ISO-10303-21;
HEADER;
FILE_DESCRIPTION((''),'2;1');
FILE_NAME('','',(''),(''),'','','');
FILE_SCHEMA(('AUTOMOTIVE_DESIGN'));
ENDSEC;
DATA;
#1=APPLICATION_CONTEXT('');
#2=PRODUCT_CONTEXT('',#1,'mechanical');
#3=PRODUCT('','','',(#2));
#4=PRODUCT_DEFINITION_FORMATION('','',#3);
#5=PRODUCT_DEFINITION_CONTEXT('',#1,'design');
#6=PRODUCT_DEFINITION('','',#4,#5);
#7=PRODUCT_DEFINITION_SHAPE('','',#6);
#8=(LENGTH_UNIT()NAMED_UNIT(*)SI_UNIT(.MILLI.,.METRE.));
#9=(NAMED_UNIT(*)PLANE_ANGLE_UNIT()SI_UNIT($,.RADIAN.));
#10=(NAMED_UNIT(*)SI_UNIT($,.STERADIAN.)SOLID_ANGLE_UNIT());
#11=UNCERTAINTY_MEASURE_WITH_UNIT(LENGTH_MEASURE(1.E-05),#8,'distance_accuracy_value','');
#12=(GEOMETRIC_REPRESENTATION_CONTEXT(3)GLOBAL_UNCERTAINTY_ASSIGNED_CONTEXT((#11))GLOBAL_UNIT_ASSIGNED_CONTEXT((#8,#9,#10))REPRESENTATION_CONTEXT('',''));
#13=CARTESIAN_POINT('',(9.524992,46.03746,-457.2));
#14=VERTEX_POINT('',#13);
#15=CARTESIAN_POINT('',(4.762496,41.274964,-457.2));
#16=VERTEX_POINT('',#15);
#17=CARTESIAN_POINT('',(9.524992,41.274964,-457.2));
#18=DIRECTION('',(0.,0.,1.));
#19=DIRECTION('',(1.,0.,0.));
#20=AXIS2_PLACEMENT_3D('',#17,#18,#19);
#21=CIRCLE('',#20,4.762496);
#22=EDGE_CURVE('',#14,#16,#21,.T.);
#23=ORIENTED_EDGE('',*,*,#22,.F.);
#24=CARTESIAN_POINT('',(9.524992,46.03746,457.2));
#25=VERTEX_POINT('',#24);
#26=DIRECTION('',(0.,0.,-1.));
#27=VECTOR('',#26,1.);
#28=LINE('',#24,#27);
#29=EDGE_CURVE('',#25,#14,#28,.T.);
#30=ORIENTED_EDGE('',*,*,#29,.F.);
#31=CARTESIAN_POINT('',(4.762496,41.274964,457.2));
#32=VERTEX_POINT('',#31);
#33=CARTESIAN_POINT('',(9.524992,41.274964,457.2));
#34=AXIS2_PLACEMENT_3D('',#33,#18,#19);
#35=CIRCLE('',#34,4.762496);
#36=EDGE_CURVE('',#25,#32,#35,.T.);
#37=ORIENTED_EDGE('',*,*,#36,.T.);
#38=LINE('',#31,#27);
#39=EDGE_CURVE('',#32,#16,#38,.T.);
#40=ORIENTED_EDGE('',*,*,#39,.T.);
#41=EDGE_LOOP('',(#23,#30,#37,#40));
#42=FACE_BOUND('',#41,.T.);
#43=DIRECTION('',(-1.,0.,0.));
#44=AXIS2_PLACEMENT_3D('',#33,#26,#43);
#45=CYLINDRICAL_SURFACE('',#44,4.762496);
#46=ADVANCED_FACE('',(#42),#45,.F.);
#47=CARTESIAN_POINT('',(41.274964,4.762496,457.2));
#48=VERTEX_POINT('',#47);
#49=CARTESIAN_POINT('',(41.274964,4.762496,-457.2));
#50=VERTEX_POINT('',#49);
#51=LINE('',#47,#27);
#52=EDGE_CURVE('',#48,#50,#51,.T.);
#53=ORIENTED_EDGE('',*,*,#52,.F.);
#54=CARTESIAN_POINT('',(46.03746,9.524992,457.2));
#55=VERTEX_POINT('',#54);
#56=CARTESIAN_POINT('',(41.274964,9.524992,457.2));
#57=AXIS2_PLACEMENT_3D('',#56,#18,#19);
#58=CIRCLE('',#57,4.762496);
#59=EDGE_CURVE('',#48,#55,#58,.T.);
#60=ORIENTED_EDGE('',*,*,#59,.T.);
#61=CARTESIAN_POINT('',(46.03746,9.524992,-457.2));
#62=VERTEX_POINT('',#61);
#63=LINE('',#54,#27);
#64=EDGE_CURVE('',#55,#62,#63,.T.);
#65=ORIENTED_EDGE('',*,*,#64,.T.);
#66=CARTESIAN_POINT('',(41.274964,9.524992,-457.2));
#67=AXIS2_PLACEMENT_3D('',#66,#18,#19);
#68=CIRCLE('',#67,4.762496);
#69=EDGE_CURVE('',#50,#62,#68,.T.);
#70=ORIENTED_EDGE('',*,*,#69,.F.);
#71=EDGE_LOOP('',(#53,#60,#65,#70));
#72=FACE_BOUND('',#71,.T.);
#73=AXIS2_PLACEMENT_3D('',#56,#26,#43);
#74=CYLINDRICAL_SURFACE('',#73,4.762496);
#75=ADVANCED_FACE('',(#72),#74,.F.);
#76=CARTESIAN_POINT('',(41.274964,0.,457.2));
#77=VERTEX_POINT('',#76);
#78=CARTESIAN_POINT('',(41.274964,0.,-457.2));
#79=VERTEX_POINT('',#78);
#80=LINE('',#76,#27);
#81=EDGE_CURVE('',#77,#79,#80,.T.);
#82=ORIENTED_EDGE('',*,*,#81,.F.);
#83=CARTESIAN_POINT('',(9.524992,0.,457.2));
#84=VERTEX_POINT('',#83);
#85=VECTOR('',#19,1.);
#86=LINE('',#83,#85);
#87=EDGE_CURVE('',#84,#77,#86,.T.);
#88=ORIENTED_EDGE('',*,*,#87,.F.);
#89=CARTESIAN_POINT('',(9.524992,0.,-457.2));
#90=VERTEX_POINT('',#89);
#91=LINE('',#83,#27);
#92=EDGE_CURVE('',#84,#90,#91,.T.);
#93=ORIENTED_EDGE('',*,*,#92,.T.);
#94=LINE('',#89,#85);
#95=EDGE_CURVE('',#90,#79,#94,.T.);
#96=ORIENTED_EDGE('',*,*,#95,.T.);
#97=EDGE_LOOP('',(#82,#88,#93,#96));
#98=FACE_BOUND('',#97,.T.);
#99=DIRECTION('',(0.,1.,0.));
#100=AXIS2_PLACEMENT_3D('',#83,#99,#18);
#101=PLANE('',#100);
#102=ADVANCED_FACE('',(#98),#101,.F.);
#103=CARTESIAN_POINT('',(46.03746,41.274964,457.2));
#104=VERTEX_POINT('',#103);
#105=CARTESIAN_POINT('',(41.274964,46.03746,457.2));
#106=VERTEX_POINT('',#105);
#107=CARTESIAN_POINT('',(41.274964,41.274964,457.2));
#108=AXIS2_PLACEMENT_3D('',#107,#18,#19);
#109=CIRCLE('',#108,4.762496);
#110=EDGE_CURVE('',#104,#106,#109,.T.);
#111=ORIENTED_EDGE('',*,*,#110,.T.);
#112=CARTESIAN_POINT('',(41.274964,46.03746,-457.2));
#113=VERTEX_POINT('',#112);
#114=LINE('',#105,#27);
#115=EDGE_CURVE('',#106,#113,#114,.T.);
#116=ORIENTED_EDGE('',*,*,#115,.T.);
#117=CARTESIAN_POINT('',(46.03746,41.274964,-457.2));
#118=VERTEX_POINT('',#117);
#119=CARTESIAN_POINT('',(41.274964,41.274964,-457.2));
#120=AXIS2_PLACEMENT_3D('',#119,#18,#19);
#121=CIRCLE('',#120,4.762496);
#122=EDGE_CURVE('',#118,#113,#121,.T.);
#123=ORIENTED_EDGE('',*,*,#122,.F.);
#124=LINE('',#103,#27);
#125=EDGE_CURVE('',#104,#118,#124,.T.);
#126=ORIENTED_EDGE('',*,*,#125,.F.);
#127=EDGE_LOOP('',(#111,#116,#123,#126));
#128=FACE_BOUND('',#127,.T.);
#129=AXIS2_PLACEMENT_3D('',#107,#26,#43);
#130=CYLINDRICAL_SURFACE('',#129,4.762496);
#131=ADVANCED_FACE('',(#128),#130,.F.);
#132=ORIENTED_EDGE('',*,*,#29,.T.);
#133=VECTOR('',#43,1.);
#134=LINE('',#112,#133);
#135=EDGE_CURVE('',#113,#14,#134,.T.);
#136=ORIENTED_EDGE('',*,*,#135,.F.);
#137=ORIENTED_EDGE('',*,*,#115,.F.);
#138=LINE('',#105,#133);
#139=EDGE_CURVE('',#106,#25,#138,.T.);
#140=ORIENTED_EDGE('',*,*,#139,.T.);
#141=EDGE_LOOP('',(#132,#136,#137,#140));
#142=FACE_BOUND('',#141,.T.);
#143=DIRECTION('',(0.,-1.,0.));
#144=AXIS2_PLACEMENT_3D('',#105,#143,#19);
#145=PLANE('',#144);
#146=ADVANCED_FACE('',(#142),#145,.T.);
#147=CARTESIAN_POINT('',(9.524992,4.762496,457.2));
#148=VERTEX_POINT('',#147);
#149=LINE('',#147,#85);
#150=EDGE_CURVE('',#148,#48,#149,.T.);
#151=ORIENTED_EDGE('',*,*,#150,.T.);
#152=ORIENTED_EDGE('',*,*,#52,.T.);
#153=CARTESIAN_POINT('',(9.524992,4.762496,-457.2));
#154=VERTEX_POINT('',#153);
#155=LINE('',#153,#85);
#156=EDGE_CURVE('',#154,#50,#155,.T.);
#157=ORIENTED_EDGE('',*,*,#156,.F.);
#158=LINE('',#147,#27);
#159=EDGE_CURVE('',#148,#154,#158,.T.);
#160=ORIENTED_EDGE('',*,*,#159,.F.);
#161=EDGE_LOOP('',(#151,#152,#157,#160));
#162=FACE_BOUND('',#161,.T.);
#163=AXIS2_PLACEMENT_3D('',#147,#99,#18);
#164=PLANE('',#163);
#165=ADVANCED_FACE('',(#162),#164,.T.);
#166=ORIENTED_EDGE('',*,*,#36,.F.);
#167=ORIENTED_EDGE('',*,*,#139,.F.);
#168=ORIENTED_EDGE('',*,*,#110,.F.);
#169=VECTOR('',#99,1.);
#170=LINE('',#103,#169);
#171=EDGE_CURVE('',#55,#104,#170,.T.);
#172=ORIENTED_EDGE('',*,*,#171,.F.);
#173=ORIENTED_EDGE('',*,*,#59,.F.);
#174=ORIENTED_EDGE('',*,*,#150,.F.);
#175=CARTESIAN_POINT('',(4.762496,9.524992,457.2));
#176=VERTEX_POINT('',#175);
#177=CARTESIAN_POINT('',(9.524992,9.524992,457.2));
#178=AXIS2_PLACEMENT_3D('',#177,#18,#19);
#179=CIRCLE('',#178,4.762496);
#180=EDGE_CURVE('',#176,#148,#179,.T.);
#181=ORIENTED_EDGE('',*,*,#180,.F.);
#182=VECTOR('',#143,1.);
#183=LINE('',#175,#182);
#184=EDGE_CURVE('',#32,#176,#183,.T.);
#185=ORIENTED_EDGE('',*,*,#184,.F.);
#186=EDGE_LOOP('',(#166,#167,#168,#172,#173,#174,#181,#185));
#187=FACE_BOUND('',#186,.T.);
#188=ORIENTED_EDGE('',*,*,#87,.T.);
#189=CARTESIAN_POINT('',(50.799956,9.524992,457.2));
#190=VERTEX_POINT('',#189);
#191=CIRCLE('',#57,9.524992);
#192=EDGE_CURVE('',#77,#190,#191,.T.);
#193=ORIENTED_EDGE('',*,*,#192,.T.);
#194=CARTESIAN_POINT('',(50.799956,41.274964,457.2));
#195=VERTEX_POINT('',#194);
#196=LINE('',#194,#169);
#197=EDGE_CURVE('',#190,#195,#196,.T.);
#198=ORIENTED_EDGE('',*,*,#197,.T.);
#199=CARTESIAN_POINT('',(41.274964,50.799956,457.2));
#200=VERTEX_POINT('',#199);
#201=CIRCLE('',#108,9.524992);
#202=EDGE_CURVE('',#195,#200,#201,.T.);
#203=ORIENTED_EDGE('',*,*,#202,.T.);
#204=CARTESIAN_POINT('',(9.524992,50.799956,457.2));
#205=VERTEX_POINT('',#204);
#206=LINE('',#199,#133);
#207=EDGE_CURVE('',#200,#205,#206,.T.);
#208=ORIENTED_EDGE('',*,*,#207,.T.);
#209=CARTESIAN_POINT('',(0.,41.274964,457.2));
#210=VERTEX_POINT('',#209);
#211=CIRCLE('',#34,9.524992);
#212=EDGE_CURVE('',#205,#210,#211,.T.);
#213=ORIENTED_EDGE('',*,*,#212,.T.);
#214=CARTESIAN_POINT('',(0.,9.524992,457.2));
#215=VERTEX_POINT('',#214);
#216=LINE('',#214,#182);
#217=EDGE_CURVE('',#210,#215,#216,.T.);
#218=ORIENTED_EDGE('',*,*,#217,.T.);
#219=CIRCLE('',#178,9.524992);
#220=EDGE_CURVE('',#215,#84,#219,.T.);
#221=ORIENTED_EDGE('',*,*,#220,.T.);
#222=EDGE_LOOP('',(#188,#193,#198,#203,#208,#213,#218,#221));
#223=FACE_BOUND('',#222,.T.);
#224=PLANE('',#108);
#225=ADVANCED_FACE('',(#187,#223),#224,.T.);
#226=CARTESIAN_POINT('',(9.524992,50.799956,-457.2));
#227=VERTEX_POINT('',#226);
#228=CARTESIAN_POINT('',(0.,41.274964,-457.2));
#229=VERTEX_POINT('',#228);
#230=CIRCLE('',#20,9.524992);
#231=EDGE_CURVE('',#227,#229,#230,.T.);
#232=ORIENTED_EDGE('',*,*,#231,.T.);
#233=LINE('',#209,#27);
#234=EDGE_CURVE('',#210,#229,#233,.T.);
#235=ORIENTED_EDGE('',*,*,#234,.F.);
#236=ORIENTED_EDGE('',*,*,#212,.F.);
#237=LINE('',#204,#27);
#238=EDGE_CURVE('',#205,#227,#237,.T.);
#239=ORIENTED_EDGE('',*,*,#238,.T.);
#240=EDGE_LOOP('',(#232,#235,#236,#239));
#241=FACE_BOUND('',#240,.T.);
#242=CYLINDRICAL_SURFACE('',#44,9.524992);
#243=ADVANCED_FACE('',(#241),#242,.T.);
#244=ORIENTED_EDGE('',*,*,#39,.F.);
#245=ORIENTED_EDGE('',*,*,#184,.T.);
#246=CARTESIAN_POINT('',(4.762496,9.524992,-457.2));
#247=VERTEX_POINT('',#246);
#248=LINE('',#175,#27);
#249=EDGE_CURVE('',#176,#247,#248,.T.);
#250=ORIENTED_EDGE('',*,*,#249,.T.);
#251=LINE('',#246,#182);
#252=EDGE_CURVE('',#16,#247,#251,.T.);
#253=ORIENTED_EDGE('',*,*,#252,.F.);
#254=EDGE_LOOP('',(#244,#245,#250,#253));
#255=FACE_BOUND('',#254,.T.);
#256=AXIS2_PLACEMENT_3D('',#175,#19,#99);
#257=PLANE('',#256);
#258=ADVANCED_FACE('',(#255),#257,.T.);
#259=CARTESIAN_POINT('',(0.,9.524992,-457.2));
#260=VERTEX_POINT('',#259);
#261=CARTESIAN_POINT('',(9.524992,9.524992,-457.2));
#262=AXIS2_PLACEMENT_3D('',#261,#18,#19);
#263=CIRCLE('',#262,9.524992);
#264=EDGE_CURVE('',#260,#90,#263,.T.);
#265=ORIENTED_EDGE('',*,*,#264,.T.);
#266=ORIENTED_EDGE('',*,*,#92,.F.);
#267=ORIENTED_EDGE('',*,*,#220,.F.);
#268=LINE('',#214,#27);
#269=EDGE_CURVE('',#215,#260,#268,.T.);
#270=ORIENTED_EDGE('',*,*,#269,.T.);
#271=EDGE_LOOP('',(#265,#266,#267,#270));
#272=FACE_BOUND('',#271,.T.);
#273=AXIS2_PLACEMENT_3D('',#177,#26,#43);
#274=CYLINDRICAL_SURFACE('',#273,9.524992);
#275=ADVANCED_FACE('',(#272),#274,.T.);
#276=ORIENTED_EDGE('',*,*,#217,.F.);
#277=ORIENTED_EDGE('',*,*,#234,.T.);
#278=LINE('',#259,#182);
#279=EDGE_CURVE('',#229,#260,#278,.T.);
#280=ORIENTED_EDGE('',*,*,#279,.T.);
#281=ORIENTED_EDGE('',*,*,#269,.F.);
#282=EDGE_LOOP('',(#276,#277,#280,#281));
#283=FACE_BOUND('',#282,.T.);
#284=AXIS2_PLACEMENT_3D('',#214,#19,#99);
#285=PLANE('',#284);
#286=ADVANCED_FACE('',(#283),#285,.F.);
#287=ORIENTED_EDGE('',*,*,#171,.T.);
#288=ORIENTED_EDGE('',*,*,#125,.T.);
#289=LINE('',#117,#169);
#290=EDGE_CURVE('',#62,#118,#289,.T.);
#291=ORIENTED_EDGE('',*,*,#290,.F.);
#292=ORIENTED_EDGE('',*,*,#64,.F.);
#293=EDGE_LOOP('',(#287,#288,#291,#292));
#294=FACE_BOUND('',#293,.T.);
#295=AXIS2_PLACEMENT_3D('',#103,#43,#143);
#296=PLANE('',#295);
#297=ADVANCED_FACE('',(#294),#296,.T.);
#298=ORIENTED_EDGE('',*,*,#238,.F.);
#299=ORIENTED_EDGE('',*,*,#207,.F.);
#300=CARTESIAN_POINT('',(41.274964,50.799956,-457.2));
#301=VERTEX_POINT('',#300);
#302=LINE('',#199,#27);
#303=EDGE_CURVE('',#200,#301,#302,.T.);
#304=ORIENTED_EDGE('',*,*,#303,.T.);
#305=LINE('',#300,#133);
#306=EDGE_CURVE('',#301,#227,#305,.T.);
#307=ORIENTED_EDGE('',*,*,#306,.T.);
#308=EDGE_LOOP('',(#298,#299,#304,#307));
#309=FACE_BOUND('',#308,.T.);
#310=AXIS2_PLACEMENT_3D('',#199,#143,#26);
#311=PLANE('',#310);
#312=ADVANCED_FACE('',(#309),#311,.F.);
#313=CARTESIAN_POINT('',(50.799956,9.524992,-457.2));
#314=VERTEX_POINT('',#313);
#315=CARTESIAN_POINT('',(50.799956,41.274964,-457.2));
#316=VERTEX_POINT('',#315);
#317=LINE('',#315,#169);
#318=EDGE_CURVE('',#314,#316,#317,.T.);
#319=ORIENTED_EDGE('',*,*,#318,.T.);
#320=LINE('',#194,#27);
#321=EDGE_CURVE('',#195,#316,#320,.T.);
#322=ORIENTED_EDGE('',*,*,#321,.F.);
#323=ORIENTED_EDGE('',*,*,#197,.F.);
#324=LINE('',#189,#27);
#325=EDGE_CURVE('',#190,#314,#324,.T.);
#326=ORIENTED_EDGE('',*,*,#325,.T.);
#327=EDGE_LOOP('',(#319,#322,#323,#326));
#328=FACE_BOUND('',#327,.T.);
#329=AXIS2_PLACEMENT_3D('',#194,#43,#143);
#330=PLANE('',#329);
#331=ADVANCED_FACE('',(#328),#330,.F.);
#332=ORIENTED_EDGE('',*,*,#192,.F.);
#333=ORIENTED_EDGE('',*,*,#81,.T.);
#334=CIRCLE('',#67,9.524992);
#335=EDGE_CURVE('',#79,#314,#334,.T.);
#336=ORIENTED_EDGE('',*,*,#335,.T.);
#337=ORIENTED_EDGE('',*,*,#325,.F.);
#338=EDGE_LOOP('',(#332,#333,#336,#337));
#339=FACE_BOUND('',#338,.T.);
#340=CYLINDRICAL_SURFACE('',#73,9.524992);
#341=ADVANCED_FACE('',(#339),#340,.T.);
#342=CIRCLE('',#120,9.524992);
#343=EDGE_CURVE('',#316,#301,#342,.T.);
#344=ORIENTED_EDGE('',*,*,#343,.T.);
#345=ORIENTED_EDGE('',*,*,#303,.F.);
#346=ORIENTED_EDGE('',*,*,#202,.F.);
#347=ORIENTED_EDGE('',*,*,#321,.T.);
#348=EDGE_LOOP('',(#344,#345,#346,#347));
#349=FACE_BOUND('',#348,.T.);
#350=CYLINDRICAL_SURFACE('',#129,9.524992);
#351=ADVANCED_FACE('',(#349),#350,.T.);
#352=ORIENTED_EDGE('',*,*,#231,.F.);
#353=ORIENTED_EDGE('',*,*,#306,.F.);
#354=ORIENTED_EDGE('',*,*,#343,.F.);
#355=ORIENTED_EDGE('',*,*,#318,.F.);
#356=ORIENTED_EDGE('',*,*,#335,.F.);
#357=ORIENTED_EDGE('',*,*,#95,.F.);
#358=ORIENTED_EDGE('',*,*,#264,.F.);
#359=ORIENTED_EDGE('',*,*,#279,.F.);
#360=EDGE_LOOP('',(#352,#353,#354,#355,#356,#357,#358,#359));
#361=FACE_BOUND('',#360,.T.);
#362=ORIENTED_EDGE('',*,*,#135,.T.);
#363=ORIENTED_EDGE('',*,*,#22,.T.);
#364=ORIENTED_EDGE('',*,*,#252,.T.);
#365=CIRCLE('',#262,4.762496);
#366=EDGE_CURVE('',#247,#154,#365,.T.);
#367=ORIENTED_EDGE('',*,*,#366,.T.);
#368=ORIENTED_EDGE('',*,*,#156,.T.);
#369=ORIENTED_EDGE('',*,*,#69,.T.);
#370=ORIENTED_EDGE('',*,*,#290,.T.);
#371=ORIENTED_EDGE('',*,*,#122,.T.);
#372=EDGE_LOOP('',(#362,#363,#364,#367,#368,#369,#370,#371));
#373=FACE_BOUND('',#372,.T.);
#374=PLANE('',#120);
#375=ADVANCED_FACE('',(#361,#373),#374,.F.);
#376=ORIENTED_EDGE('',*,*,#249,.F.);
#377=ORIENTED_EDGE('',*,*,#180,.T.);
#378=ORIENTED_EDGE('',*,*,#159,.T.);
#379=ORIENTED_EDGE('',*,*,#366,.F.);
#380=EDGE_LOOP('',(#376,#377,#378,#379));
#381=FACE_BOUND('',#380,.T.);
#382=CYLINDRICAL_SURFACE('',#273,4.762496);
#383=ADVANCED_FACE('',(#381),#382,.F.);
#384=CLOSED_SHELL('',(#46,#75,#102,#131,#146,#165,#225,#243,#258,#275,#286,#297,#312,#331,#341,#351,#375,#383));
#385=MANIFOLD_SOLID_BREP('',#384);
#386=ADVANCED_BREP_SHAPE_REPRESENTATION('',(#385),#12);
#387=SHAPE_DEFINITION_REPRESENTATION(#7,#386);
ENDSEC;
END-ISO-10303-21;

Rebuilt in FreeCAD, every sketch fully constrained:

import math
import FreeCAD as App
import Part
import Sketcher
from FreeCAD import Vector
Q = App.Units.Quantity

doc = App.newDocument("Part")
body = doc.addObject("PartDesign::Body", "Body")

# Sketch on XY plane
sketch1 = body.newObject("Sketcher::SketchObject", "Sketch")
sketch1.AttachmentSupport = (doc.getObject("XY_Plane"), [""])
sketch1.MapMode = "FlatFace"
sketch1.addGeometry(Part.LineSegment(Vector(9.5, 0, 0), Vector(41.3, 0, 0)), False)
sketch1.addGeometry(Part.ArcOfCircle(Part.Circle(Vector(41.3, 9.5, 0), Vector(0, 0, 1), 9.5), math.radians(-90), math.radians(0)), False)
sketch1.addGeometry(Part.LineSegment(Vector(50.8, 9.5, 0), Vector(50.8, 41.3, 0)), False)
sketch1.addGeometry(Part.ArcOfCircle(Part.Circle(Vector(41.3, 41.3, 0), Vector(0, 0, 1), 9.5), math.radians(0), math.radians(90)), False)
sketch1.addGeometry(Part.LineSegment(Vector(41.3, 50.8, 0), Vector(9.5, 50.8, 0)), False)
sketch1.addGeometry(Part.ArcOfCircle(Part.Circle(Vector(9.5, 41.3, 0), Vector(0, 0, 1), 9.5), math.radians(90), math.radians(180)), False)
sketch1.addGeometry(Part.LineSegment(Vector(0, 41.3, 0), Vector(0, 9.5, 0)), False)
sketch1.addGeometry(Part.ArcOfCircle(Part.Circle(Vector(9.5, 9.5, 0), Vector(0, 0, 1), 9.5), math.radians(-180), math.radians(-90)), False)
sketch1.addGeometry(Part.LineSegment(Vector(41.3, 4.8, 0), Vector(9.5, 4.8, 0)), False)
sketch1.addGeometry(Part.ArcOfCircle(Part.Circle(Vector(9.5, 9.5, 0), Vector(0, 0, 1), 4.8), math.radians(180), math.radians(270)), False)
sketch1.addGeometry(Part.LineSegment(Vector(4.8, 9.5, 0), Vector(4.8, 41.3, 0)), False)
sketch1.addGeometry(Part.ArcOfCircle(Part.Circle(Vector(9.5, 41.3, 0), Vector(0, 0, 1), 4.8), math.radians(90), math.radians(180)), False)
sketch1.addGeometry(Part.LineSegment(Vector(9.5, 46, 0), Vector(41.3, 46, 0)), False)
sketch1.addGeometry(Part.ArcOfCircle(Part.Circle(Vector(41.3, 41.3, 0), Vector(0, 0, 1), 4.8), math.radians(0), math.radians(90)), False)
sketch1.addGeometry(Part.LineSegment(Vector(46, 41.3, 0), Vector(46, 9.5, 0)), False)
sketch1.addGeometry(Part.ArcOfCircle(Part.Circle(Vector(41.3, 9.5, 0), Vector(0, 0, 1), 4.8), math.radians(-90), math.radians(0)), False)
sketch1.addConstraint(Sketcher.Constraint("Tangent", 0, 2, 1, 1))
sketch1.addConstraint(Sketcher.Constraint("Tangent", 1, 2, 2, 1))
sketch1.addConstraint(Sketcher.Constraint("Tangent", 2, 2, 3, 1))
sketch1.addConstraint(Sketcher.Constraint("Tangent", 3, 2, 4, 1))
sketch1.addConstraint(Sketcher.Constraint("Tangent", 4, 2, 5, 1))
sketch1.addConstraint(Sketcher.Constraint("Tangent", 5, 2, 6, 1))
sketch1.addConstraint(Sketcher.Constraint("Tangent", 6, 2, 7, 1))
sketch1.addConstraint(Sketcher.Constraint("Tangent", 7, 2, 0, 1))
sketch1.addConstraint(Sketcher.Constraint("Tangent", 8, 2, 9, 2))
sketch1.addConstraint(Sketcher.Constraint("Tangent", 9, 1, 10, 1))
sketch1.addConstraint(Sketcher.Constraint("Tangent", 10, 2, 11, 2))
sketch1.addConstraint(Sketcher.Constraint("Tangent", 11, 1, 12, 1))
sketch1.addConstraint(Sketcher.Constraint("Tangent", 12, 2, 13, 2))
sketch1.addConstraint(Sketcher.Constraint("Tangent", 13, 1, 14, 1))
sketch1.addConstraint(Sketcher.Constraint("Tangent", 14, 2, 15, 2))
sketch1.addConstraint(Sketcher.Constraint("Tangent", 15, 1, 8, 1))
sketch1.addConstraint(Sketcher.Constraint("Horizontal", 0))
sketch1.addConstraint(Sketcher.Constraint("Vertical", 2))
sketch1.addConstraint(Sketcher.Constraint("Horizontal", 4))
sketch1.addConstraint(Sketcher.Constraint("Vertical", 6))
sketch1.addConstraint(Sketcher.Constraint("Horizontal", 8))
sketch1.addConstraint(Sketcher.Constraint("Vertical", 10))
sketch1.addConstraint(Sketcher.Constraint("Horizontal", 12))
sketch1.addConstraint(Sketcher.Constraint("Vertical", 14))
sketch1.addConstraint(Sketcher.Constraint("Coincident", 9, 3, 7, 3))
sketch1.addConstraint(Sketcher.Constraint("Coincident", 11, 3, 5, 3))
sketch1.addConstraint(Sketcher.Constraint("Coincident", 13, 3, 3, 3))
sketch1.addConstraint(Sketcher.Constraint("Equal", 1, 3))
sketch1.addConstraint(Sketcher.Constraint("Equal", 3, 5))
sketch1.addConstraint(Sketcher.Constraint("Equal", 5, 7))
sketch1.addConstraint(Sketcher.Constraint("Equal", 13, 15))
sketch1.addConstraint(Sketcher.Constraint("PointOnObject", 0, 2, -1))
sketch1.addConstraint(Sketcher.Constraint("PointOnObject", 5, 2, -2))
sketch1.addConstraint(Sketcher.Constraint("Equal", 12, 2))
sketch1.addConstraint(Sketcher.Constraint("Radius", 9, Q("0.1874998 in")))
sketch1.addConstraint(Sketcher.Constraint("Radius", 1, 9.524992))
sketch1.addConstraint(Sketcher.Constraint("DistanceX", 0, 1, 0, 2, 31.749972))
pad1 = body.newObject("PartDesign::Pad", "Pad")
pad1.Profile = sketch1
pad1.Length = Q("36 in")
pad1.Midplane = True

doc.recompute()
